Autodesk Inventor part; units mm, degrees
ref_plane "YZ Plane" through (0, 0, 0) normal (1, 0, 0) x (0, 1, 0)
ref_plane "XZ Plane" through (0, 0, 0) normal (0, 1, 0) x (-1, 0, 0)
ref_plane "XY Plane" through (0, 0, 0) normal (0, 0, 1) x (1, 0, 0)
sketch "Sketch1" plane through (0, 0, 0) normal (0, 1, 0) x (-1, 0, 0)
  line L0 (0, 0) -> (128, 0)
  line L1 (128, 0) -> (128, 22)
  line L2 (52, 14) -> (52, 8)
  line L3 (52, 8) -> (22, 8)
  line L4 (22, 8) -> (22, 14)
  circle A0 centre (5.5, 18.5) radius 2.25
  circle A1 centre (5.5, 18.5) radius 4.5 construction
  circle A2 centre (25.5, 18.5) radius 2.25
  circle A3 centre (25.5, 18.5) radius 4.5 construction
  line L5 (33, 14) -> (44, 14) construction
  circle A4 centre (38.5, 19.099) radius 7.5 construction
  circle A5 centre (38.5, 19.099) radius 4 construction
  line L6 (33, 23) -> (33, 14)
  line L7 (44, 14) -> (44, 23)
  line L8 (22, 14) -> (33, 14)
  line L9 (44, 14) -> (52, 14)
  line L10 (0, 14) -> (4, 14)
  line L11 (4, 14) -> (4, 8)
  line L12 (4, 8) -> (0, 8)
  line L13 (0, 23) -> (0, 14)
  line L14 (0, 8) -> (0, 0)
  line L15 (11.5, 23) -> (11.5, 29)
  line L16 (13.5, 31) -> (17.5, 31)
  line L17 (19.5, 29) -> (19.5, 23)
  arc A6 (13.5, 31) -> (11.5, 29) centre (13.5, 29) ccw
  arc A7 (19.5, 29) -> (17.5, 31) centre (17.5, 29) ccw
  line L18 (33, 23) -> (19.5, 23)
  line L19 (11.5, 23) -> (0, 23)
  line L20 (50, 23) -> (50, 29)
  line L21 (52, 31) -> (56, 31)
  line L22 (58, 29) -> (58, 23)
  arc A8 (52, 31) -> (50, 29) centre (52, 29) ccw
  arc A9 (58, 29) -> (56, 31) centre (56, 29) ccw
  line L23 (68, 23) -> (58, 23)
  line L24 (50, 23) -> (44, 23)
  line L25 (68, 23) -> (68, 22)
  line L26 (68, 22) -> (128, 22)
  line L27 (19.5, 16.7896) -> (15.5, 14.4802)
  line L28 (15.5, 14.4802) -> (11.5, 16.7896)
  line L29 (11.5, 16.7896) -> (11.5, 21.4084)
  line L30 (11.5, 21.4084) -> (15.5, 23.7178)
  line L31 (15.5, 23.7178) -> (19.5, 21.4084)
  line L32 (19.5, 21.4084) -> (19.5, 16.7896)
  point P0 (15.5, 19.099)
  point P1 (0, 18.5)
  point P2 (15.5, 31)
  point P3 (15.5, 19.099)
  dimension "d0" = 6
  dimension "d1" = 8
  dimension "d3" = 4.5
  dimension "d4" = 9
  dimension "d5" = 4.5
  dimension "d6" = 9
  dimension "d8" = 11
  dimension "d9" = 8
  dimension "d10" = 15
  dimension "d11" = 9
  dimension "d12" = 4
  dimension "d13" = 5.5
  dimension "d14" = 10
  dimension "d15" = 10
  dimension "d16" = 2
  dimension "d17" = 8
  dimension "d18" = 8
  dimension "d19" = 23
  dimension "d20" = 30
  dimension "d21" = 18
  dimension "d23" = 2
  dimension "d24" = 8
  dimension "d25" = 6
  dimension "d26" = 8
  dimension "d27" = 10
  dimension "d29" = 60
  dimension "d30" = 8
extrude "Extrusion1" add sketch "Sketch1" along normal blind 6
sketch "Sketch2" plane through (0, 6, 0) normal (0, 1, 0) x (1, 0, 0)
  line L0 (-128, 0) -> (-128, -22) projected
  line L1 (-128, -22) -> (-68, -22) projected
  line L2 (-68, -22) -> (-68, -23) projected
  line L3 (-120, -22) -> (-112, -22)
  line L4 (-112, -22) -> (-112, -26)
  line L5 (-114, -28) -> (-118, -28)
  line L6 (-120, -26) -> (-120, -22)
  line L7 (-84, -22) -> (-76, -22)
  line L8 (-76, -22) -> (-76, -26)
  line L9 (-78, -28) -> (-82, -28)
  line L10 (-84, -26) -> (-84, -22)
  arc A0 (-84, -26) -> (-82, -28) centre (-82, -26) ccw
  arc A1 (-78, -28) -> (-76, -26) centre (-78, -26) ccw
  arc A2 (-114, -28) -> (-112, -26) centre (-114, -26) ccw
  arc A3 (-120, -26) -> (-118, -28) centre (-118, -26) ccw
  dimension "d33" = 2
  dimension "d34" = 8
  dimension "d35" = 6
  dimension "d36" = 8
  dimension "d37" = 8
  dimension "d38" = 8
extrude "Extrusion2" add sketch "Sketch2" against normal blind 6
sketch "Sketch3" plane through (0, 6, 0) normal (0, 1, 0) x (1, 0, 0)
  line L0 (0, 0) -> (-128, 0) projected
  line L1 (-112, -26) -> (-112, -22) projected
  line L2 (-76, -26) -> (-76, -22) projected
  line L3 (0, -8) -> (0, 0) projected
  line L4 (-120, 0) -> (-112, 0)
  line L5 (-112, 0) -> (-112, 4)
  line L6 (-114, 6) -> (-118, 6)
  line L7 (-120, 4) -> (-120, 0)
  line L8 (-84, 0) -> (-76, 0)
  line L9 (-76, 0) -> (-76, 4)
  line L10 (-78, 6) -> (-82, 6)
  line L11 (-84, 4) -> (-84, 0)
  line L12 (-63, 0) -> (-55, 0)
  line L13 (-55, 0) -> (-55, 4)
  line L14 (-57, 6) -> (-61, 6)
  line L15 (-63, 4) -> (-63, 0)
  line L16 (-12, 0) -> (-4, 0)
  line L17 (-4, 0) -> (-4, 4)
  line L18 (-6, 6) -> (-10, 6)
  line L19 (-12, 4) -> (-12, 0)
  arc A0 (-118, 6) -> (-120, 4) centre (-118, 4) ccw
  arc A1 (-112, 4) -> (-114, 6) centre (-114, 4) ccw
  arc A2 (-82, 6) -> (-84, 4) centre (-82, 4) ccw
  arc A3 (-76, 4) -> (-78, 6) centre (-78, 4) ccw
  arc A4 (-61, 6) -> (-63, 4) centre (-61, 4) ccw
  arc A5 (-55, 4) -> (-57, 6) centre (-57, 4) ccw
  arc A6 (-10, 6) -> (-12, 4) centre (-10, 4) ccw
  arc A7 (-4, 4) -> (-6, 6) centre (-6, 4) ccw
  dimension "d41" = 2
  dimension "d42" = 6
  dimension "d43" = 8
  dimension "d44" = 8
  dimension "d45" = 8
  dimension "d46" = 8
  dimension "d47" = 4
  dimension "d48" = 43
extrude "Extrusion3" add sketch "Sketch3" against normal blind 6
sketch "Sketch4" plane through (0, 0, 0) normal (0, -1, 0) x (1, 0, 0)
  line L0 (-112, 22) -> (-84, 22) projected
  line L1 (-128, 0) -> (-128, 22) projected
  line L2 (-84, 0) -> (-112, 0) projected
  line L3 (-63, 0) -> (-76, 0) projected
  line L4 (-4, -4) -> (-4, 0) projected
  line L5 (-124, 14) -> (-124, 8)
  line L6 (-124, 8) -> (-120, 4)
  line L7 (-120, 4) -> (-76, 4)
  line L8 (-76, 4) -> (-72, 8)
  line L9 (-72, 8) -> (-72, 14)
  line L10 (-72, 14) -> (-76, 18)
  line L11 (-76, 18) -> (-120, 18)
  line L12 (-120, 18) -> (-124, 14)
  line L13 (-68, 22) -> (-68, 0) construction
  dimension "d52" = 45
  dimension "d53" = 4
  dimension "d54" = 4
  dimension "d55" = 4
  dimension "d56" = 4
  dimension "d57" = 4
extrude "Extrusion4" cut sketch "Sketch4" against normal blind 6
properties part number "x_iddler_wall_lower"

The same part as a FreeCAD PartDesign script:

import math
import FreeCAD as App
import Part
import Sketcher
from FreeCAD import Vector
Q = App.Units.Quantity

doc = App.newDocument("Part")
body = doc.addObject("PartDesign::Body", "Body")

# Sketch on XZ plane
sketch1 = doc.addObject("Sketcher::SketchObject", "Sketch")
body.addObject(sketch1)
sketch1.AttachmentSupport = (doc.XZ_Plane, [""])
sketch1.MapMode = "FlatFace"
sketch1.addGeometry([
    Part.LineSegment(Vector(0, 8, 0), Vector(0, 0, 0)),  # 0
    Part.LineSegment(Vector(0, 0, 0), Vector(-128, 0, 0)),  # 1
    Part.LineSegment(Vector(-128, 0, 0), Vector(-128, 22, 0)),  # 2
    Part.LineSegment(Vector(-128, 22, 0), Vector(-68, 22, 0)),  # 3
    Part.LineSegment(Vector(-68, 22, 0), Vector(-68, 23, 0)),  # 4
    Part.LineSegment(Vector(-68, 23, 0), Vector(-58, 23, 0)),  # 5
    Part.LineSegment(Vector(-58, 23, 0), Vector(-58, 29, 0)),  # 6
    Part.ArcOfCircle(Part.Circle(Vector(-56, 29, 0), Vector(0, 0, 1), 2), math.radians(90), math.radians(180)),  # 7
    Part.LineSegment(Vector(-56, 31, 0), Vector(-52, 31, 0)),  # 8
    Part.ArcOfCircle(Part.Circle(Vector(-52, 29, 0), Vector(0, 0, 1), 2), math.radians(0), math.radians(90)),  # 9
    Part.LineSegment(Vector(-50, 29, 0), Vector(-50, 23, 0)),  # 10
    Part.LineSegment(Vector(-50, 23, 0), Vector(-44, 23, 0)),  # 11
    Part.LineSegment(Vector(-44, 23, 0), Vector(-44, 14, 0)),  # 12
    Part.LineSegment(Vector(-44, 14, 0), Vector(-52, 14, 0)),  # 13
    Part.LineSegment(Vector(-52, 14, 0), Vector(-52, 8, 0)),  # 14
    Part.LineSegment(Vector(-52, 8, 0), Vector(-22, 8, 0)),  # 15
    Part.LineSegment(Vector(-22, 8, 0), Vector(-22, 14, 0)),  # 16
    Part.LineSegment(Vector(-22, 14, 0), Vector(-33, 14, 0)),  # 17
    Part.LineSegment(Vector(-33, 14, 0), Vector(-33, 23, 0)),  # 18
    Part.LineSegment(Vector(-33, 23, 0), Vector(-19.5, 23, 0)),  # 19
    Part.LineSegment(Vector(-19.5, 23, 0), Vector(-19.5, 29, 0)),  # 20
    Part.ArcOfCircle(Part.Circle(Vector(-17.5, 29, 0), Vector(0, 0, 1), 2), math.radians(90), math.radians(180)),  # 21
    Part.LineSegment(Vector(-17.5, 31, 0), Vector(-13.5, 31, 0)),  # 22
    Part.ArcOfCircle(Part.Circle(Vector(-13.5, 29, 0), Vector(0, 0, 1), 2), math.radians(0), math.radians(90)),  # 23
    Part.LineSegment(Vector(-11.5, 29, 0), Vector(-11.5, 23, 0)),  # 24
    Part.LineSegment(Vector(-11.5, 23, 0), Vector(0, 23, 0)),  # 25
    Part.LineSegment(Vector(0, 23, 0), Vector(0, 14, 0)),  # 26
    Part.LineSegment(Vector(0, 14, 0), Vector(-4, 14, 0)),  # 27
    Part.LineSegment(Vector(-4, 14, 0), Vector(-4, 8, 0)),  # 28
    Part.LineSegment(Vector(-4, 8, 0), Vector(0, 8, 0)),  # 29
    Part.Circle(Vector(-5.5, 18.5, 0), Vector(0, 0, 1), 2.2),  # 30
    Part.LineSegment(Vector(-19.5, 21.4, 0), Vector(-19.5, 16.8, 0)),  # 31
    Part.LineSegment(Vector(-19.5, 16.8, 0), Vector(-15.5, 14.5, 0)),  # 32
    Part.LineSegment(Vector(-15.5, 14.5, 0), Vector(-11.5, 16.8, 0)),  # 33
    Part.LineSegment(Vector(-11.5, 16.8, 0), Vector(-11.5, 21.4, 0)),  # 34
    Part.LineSegment(Vector(-11.5, 21.4, 0), Vector(-15.5, 23.7, 0)),  # 35
    Part.LineSegment(Vector(-15.5, 23.7, 0), Vector(-19.5, 21.4, 0)),  # 36
    Part.Circle(Vector(-25.5, 18.5, 0), Vector(0, 0, 1), 2.2),  # 37
], False)
sketch1.addConstraint([
    Sketcher.Constraint("Coincident", 0, 2, 1, 1),
    Sketcher.Constraint("Coincident", 1, 2, 2, 1),
    Sketcher.Constraint("Coincident", 2, 2, 3, 1),
    Sketcher.Constraint("Coincident", 3, 2, 4, 1),
    Sketcher.Constraint("Coincident", 4, 2, 5, 1),
    Sketcher.Constraint("Coincident", 5, 2, 6, 1),
    Sketcher.Constraint("Tangent", 6, 2, 7, 2),
    Sketcher.Constraint("Tangent", 7, 1, 8, 1),
    Sketcher.Constraint("Tangent", 8, 2, 9, 2),
    Sketcher.Constraint("Tangent", 9, 1, 10, 1),
    Sketcher.Constraint("Coincident", 10, 2, 11, 1),
    Sketcher.Constraint("Coincident", 11, 2, 12, 1),
    Sketcher.Constraint("Coincident", 12, 2, 13, 1),
    Sketcher.Constraint("Coincident", 13, 2, 14, 1),
    Sketcher.Constraint("Coincident", 14, 2, 15, 1),
    Sketcher.Constraint("Coincident", 15, 2, 16, 1),
    Sketcher.Constraint("Coincident", 16, 2, 17, 1),
    Sketcher.Constraint("Coincident", 17, 2, 18, 1),
    Sketcher.Constraint("Coincident", 18, 2, 19, 1),
    Sketcher.Constraint("Coincident", 19, 2, 20, 1),
    Sketcher.Constraint("Tangent", 20, 2, 21, 2),
    Sketcher.Constraint("Tangent", 21, 1, 22, 1),
    Sketcher.Constraint("Tangent", 22, 2, 23, 2),
    Sketcher.Constraint("Tangent", 23, 1, 24, 1),
    Sketcher.Constraint("Coincident", 24, 2, 25, 1),
    Sketcher.Constraint("Coincident", 25, 2, 26, 1),
    Sketcher.Constraint("Coincident", 26, 2, 27, 1),
    Sketcher.Constraint("Coincident", 27, 2, 28, 1),
    Sketcher.Constraint("Coincident", 28, 2, 29, 1),
    Sketcher.Constraint("Coincident", 29, 2, 0, 1),
    Sketcher.Constraint("Coincident", 31, 2, 32, 1),
    Sketcher.Constraint("Coincident", 32, 2, 33, 1),
    Sketcher.Constraint("Coincident", 33, 2, 34, 1),
    Sketcher.Constraint("Coincident", 34, 2, 35, 1),
    Sketcher.Constraint("Coincident", 35, 2, 36, 1),
    Sketcher.Constraint("Coincident", 36, 2, 31, 1),
    Sketcher.Constraint("Vertical", 0),
    Sketcher.Constraint("Horizontal", 1),
    Sketcher.Constraint("Vertical", 2),
    Sketcher.Constraint("Horizontal", 3),
    Sketcher.Constraint("Vertical", 4),
    Sketcher.Constraint("Horizontal", 5),
    Sketcher.Constraint("Vertical", 6),
    Sketcher.Constraint("Horizontal", 8),
    Sketcher.Constraint("Vertical", 10),
    Sketcher.Constraint("Horizontal", 11),
    Sketcher.Constraint("Vertical", 12),
    Sketcher.Constraint("Horizontal", 13),
    Sketcher.Constraint("Vertical", 14),
    Sketcher.Constraint("Horizontal", 15),
    Sketcher.Constraint("Vertical", 16),
    Sketcher.Constraint("Horizontal", 17),
    Sketcher.Constraint("Vertical", 18),
    Sketcher.Constraint("Horizontal", 19),
    Sketcher.Constraint("Vertical", 20),
    Sketcher.Constraint("Horizontal", 22),
    Sketcher.Constraint("Vertical", 24),
    Sketcher.Constraint("Horizontal", 25),
    Sketcher.Constraint("Vertical", 26),
    Sketcher.Constraint("Horizontal", 27),
    Sketcher.Constraint("Vertical", 28),
    Sketcher.Constraint("Horizontal", 29),
    Sketcher.Constraint("Vertical", 31),
    Sketcher.Constraint("Vertical", 34),
    Sketcher.Constraint("Coincident", 0, 2, -1, 1),
    Sketcher.Constraint("Equal", 7, 9),
    Sketcher.Constraint("Equal", 9, 21),
    Sketcher.Constraint("Equal", 21, 23),
    Sketcher.Constraint("Equal", 30, 37),
    Sketcher.Constraint("PointOnObject", 25, 2, -2),
    Sketcher.Constraint("Parallel", 32, 35),
    Sketcher.Constraint("Parallel", 33, 36),
    Sketcher.Constraint("Horizontal", 9, 3, 21, 3),
    Sketcher.Constraint("Horizontal", 30, 3, 37, 3),
    Sketcher.Constraint("Horizontal", 5, 2, 10, 2),
    Sketcher.Constraint("Horizontal", 13, 2, 16, 2),
    Sketcher.Constraint("Horizontal", 11, 2, 18, 2),
    Sketcher.Constraint("Horizontal", 19, 2, 24, 2),
    Sketcher.Constraint("Horizontal", 17, 2, 26, 2),
    Sketcher.Constraint("Horizontal", 15, 2, 28, 2),
    Sketcher.Constraint("Horizontal", 31, 2, 33, 2),
    Sketcher.Constraint("Horizontal", 34, 2, 36, 2),
    Sketcher.Constraint("Vertical", 8, 2, 13, 2),
    Sketcher.Constraint("Vertical", 20, 2, 31, 2),
    Sketcher.Constraint("Vertical", 24, 2, 33, 2),
    Sketcher.Constraint("Vertical", 32, 2, 35, 2),
    Sketcher.Constraint("Equal", 8, 22),
    Sketcher.Constraint("Equal", 22, 27),
    Sketcher.Constraint("Equal", 13, 0),
    Sketcher.Constraint("Equal", 11, 6),
    Sketcher.Constraint("Equal", 10, 14),
    Sketcher.Constraint("Radius", 7, Q("2 mm")),
    Sketcher.Constraint("Diameter", 30, Q("4.5 mm")),
    Sketcher.Constraint("DistanceX", 3, 1, 3, 2, Q("60 mm")),
    Sketcher.Constraint("DistanceX", 5, 1, 5, 2, Q("10 mm")),
    Sketcher.Constraint("DistanceX", 8, 1, 8, 2, Q("4 mm")),
    Sketcher.Constraint("DistanceX", 11, 1, 11, 2, Q("6 mm")),
    Sketcher.Constraint("DistanceX", 15, 1, 15, 2, Q("30 mm")),
    Sketcher.Constraint("DistanceX", 17, 2, 17, 1, Q("11 mm")),
    Sketcher.Constraint("DistanceY", 12, 2, 12, 1, Q("9 mm")),
    Sketcher.Constraint("Angle", 32, Q("-30 deg")),
    Sketcher.Constraint("DistanceX", 23, 3, 30, 3, Q("8 mm")),
    Sketcher.Constraint("DistanceX", 37, 3, 21, 3, Q("8 mm")),
    Sketcher.Constraint("DistanceX", 30, 3, -1, 1, Q("5.5 mm")),
    Sketcher.Constraint("DistanceY", 37, 3, 4, 2, Q("4.5 mm")),
    Sketcher.Constraint("DistanceX", 15, 2, 21, 3, Q("4.5 mm")),
    Sketcher.Constraint("DistanceY", 2, 1, 2, 2, Q("22 mm")),
    Sketcher.Constraint("DistanceY", 31, 2, 31, 1, Q("4.6188 mm")),
    Sketcher.Constraint("DistanceY", -1, 1, 31, 2, Q("16.7896 mm")),
])
pad1 = doc.addObject("PartDesign::Pad", "Pad")
body.addObject(pad1)
pad1.Profile = sketch1
pad1.Length = 6
pad1.Reversed = True

# Sketch on XZ plane
sketch2 = doc.addObject("Sketcher::SketchObject", "Sketch001")
body.addObject(sketch2)
sketch2.AttachmentSupport = (doc.XZ_Plane, [""])
sketch2.MapMode = "FlatFace"
sketch2.AttachmentOffset = App.Placement(Vector(0, 0, -6), App.Rotation())
sketch2.addGeometry([
    Part.LineSegment(Vector(-76, 22, 0), Vector(-84, 22, 0)),  # 0
    Part.LineSegment(Vector(-84, 22, 0), Vector(-84, 26, 0)),  # 1
    Part.ArcOfCircle(Part.Circle(Vector(-82, 26, 0), Vector(0, 0, 1), 2), math.radians(90), math.radians(180)),  # 2
    Part.LineSegment(Vector(-82, 28, 0), Vector(-78, 28, 0)),  # 3
    Part.ArcOfCircle(Part.Circle(Vector(-78, 26, 0), Vector(0, 0, 1), 2), math.radians(0), math.radians(90)),  # 4
    Part.LineSegment(Vector(-76, 26, 0), Vector(-76, 22, 0)),  # 5
    Part.LineSegment(Vector(-112, 22, 0), Vector(-120, 22, 0)),  # 6
    Part.LineSegment(Vector(-120, 22, 0), Vector(-120, 26, 0)),  # 7
    Part.ArcOfCircle(Part.Circle(Vector(-118, 26, 0), Vector(0, 0, 1), 2), math.radians(90), math.radians(180)),  # 8
    Part.LineSegment(Vector(-118, 28, 0), Vector(-114, 28, 0)),  # 9
    Part.ArcOfCircle(Part.Circle(Vector(-114, 26, 0), Vector(0, 0, 1), 2), math.radians(0), math.radians(90)),  # 10
    Part.LineSegment(Vector(-112, 26, 0), Vector(-112, 22, 0)),  # 11
], False)
sketch2.addConstraint([
    Sketcher.Constraint("Coincident", 0, 2, 1, 1),
    Sketcher.Constraint("Tangent", 1, 2, 2, 2),
    Sketcher.Constraint("Tangent", 2, 1, 3, 1),
    Sketcher.Constraint("Tangent", 3, 2, 4, 2),
    Sketcher.Constraint("Tangent", 4, 1, 5, 1),
    Sketcher.Constraint("Coincident", 5, 2, 0, 1),
    Sketcher.Constraint("Coincident", 6, 2, 7, 1),
    Sketcher.Constraint("Tangent", 7, 2, 8, 2),
    Sketcher.Constraint("Tangent", 8, 1, 9, 1),
    Sketcher.Constraint("Tangent", 9, 2, 10, 2),
    Sketcher.Constraint("Tangent", 10, 1, 11, 1),
    Sketcher.Constraint("Coincident", 11, 2, 6, 1),
    Sketcher.Constraint("Horizontal", 0),
    Sketcher.Constraint("Vertical", 1),
    Sketcher.Constraint("Horizontal", 3),
    Sketcher.Constraint("Vertical", 5),
    Sketcher.Constraint("Horizontal", 6),
    Sketcher.Constraint("Vertical", 7),
    Sketcher.Constraint("Horizontal", 9),
    Sketcher.Constraint("Vertical", 11),
    Sketcher.Constraint("Equal", 2, 4),
    Sketcher.Constraint("Equal", 4, 8),
    Sketcher.Constraint("Equal", 8, 10),
    Sketcher.Constraint("Horizontal", 4, 3, 8, 3),
    Sketcher.Constraint("Horizontal", 5, 2, 6, 2),
    Sketcher.Constraint("Equal", 0, 6),
    Sketcher.Constraint("Equal", 9, 1),
    Sketcher.Constraint("Radius", 2, Q("2 mm")),
    Sketcher.Constraint("DistanceX", 0, 2, 0, 1, Q("8 mm")),
    Sketcher.Constraint("DistanceX", 2, 3, -1, 1, Q("82 mm")),
    Sketcher.Constraint("DistanceY", -1, 1, 2, 3, Q("26 mm")),
    Sketcher.Constraint("DistanceX", 8, 3, -1, 1, Q("118 mm")),
])
pad2 = doc.addObject("PartDesign::Pad", "Pad001")
body.addObject(pad2)
pad2.Profile = sketch2
pad2.Length = 6

# Sketch on XZ plane
sketch3 = doc.addObject("Sketcher::SketchObject", "Sketch002")
body.addObject(sketch3)
sketch3.AttachmentSupport = (doc.XZ_Plane, [""])
sketch3.MapMode = "FlatFace"
sketch3.AttachmentOffset = App.Placement(Vector(0, 0, -6), App.Rotation())
sketch3.addGeometry([
    Part.LineSegment(Vector(-120, 0, 0), Vector(-112, 0, 0)),  # 0
    Part.LineSegment(Vector(-112, 0, 0), Vector(-112, -4, 0)),  # 1
    Part.ArcOfCircle(Part.Circle(Vector(-114, -4, 0), Vector(0, 0, 1), 2), math.radians(-90), math.radians(0)),  # 2
    Part.LineSegment(Vector(-114, -6, 0), Vector(-118, -6, 0)),  # 3
    Part.ArcOfCircle(Part.Circle(Vector(-118, -4, 0), Vector(0, 0, 1), 2), math.radians(180), math.radians(270)),  # 4
    Part.LineSegment(Vector(-120, -4, 0), Vector(-120, 0, 0)),  # 5
    Part.LineSegment(Vector(-84, 0, 0), Vector(-76, 0, 0)),  # 6
    Part.LineSegment(Vector(-76, 0, 0), Vector(-76, -4, 0)),  # 7
    Part.ArcOfCircle(Part.Circle(Vector(-78, -4, 0), Vector(0, 0, 1), 2), math.radians(-90), math.radians(0)),  # 8
    Part.LineSegment(Vector(-78, -6, 0), Vector(-82, -6, 0)),  # 9
    Part.ArcOfCircle(Part.Circle(Vector(-82, -4, 0), Vector(0, 0, 1), 2), math.radians(180), math.radians(270)),  # 10
    Part.LineSegment(Vector(-84, -4, 0), Vector(-84, 0, 0)),  # 11
    Part.LineSegment(Vector(-63, 0, 0), Vector(-55, 0, 0)),  # 12
    Part.LineSegment(Vector(-55, 0, 0), Vector(-55, -4, 0)),  # 13
    Part.ArcOfCircle(Part.Circle(Vector(-57, -4, 0), Vector(0, 0, 1), 2), math.radians(-90), math.radians(0)),  # 14
    Part.LineSegment(Vector(-57, -6, 0), Vector(-61, -6, 0)),  # 15
    Part.ArcOfCircle(Part.Circle(Vector(-61, -4, 0), Vector(0, 0, 1), 2), math.radians(180), math.radians(270)),  # 16
    Part.LineSegment(Vector(-63, -4, 0), Vector(-63, 0, 0)),  # 17
    Part.LineSegment(Vector(-12, 0, 0), Vector(-4, 0, 0)),  # 18
    Part.LineSegment(Vector(-4, 0, 0), Vector(-4, -4, 0)),  # 19
    Part.ArcOfCircle(Part.Circle(Vector(-6, -4, 0), Vector(0, 0, 1), 2), math.radians(-90), math.radians(0)),  # 20
    Part.LineSegment(Vector(-6, -6, 0), Vector(-10, -6, 0)),  # 21
    Part.ArcOfCircle(Part.Circle(Vector(-10, -4, 0), Vector(0, 0, 1), 2), math.radians(180), math.radians(270)),  # 22
    Part.LineSegment(Vector(-12, -4, 0), Vector(-12, 0, 0)),  # 23
], False)
sketch3.addConstraint([
    Sketcher.Constraint("Coincident", 0, 2, 1, 1),
    Sketcher.Constraint("Tangent", 1, 2, 2, 2),
    Sketcher.Constraint("Tangent", 2, 1, 3, 1),
    Sketcher.Constraint("Tangent", 3, 2, 4, 2),
    Sketcher.Constraint("Tangent", 4, 1, 5, 1),
    Sketcher.Constraint("Coincident", 5, 2, 0, 1),
    Sketcher.Constraint("Coincident", 6, 2, 7, 1),
    Sketcher.Constraint("Tangent", 7, 2, 8, 2),
    Sketcher.Constraint("Tangent", 8, 1, 9, 1),
    Sketcher.Constraint("Tangent", 9, 2, 10, 2),
    Sketcher.Constraint("Tangent", 10, 1, 11, 1),
    Sketcher.Constraint("Coincident", 11, 2, 6, 1),
    Sketcher.Constraint("Coincident", 12, 2, 13, 1),
    Sketcher.Constraint("Tangent", 13, 2, 14, 2),
    Sketcher.Constraint("Tangent", 14, 1, 15, 1),
    Sketcher.Constraint("Tangent", 15, 2, 16, 2),
    Sketcher.Constraint("Tangent", 16, 1, 17, 1),
    Sketcher.Constraint("Coincident", 17, 2, 12, 1),
    Sketcher.Constraint("Coincident", 18, 2, 19, 1),
    Sketcher.Constraint("Tangent", 19, 2, 20, 2),
    Sketcher.Constraint("Tangent", 20, 1, 21, 1),
    Sketcher.Constraint("Tangent", 21, 2, 22, 2),
    Sketcher.Constraint("Tangent", 22, 1, 23, 1),
    Sketcher.Constraint("Coincident", 23, 2, 18, 1),
    Sketcher.Constraint("Horizontal", 0),
    Sketcher.Constraint("Vertical", 1),
    Sketcher.Constraint("Horizontal", 3),
    Sketcher.Constraint("Vertical", 5),
    Sketcher.Constraint("Horizontal", 6),
    Sketcher.Constraint("Vertical", 7),
    Sketcher.Constraint("Horizontal", 9),
    Sketcher.Constraint("Vertical", 11),
    Sketcher.Constraint("Horizontal", 12),
    Sketcher.Constraint("Vertical", 13),
    Sketcher.Constraint("Horizontal", 15),
    Sketcher.Constraint("Vertical", 17),
    Sketcher.Constraint("Horizontal", 18),
    Sketcher.Constraint("Vertical", 19),
    Sketcher.Constraint("Horizontal", 21),
    Sketcher.Constraint("Vertical", 23),
    Sketcher.Constraint("Equal", 2, 4),
    Sketcher.Constraint("Equal", 4, 8),
    Sketcher.Constraint("Equal", 8, 10),
    Sketcher.Constraint("Equal", 10, 14),
    Sketcher.Constraint("Equal", 14, 16),
    Sketcher.Constraint("Equal", 16, 20),
    Sketcher.Constraint("Equal", 20, 22),
    Sketcher.Constraint("PointOnObject", 0, 2, -1),
    Sketcher.Constraint("PointOnObject", 6, 2, -1),
    Sketcher.Constraint("PointOnObject", 12, 2, -1),
    Sketcher.Constraint("PointOnObject", 18, 2, -1),
    Sketcher.Constraint("Horizontal", 4, 3, 8, 3),
    Sketcher.Constraint("Horizontal", 10, 3, 14, 3),
    Sketcher.Constraint("Horizontal", 16, 3, 20, 3),
    Sketcher.Constraint("Equal", 0, 6),
    Sketcher.Constraint("Equal", 6, 12),
    Sketcher.Constraint("Equal", 12, 18),
    Sketcher.Constraint("Equal", 21, 1),
    Sketcher.Constraint("Radius", 2, Q("2 mm")),
    Sketcher.Constraint("DistanceX", 0, 1, 0, 2, Q("8 mm")),
    Sketcher.Constraint("DistanceX", 20, 3, -1, 1, Q("6 mm")),
    Sketcher.Constraint("DistanceX", 2, 3, -1, 1, Q("114 mm")),
    Sketcher.Constraint("DistanceX", 8, 3, -1, 1, Q("78 mm")),
    Sketcher.Constraint("DistanceX", 14, 3, -1, 1, Q("57 mm")),
])
pad3 = doc.addObject("PartDesign::Pad", "Pad002")
body.addObject(pad3)
pad3.Profile = sketch3
pad3.Length = 6

# Sketch on XZ plane
sketch4 = doc.addObject("Sketcher::SketchObject", "Sketch003")
body.addObject(sketch4)
sketch4.AttachmentSupport = (doc.XZ_Plane, [""])
sketch4.MapMode = "FlatFace"
sketch4.addGeometry([
    Part.LineSegment(Vector(-120, 18, 0), Vector(-124, 14, 0)),  # 0
    Part.LineSegment(Vector(-124, 14, 0), Vector(-124, 8, 0)),  # 1
    Part.LineSegment(Vector(-124, 8, 0), Vector(-120, 4, 0)),  # 2
    Part.LineSegment(Vector(-120, 4, 0), Vector(-76, 4, 0)),  # 3
    Part.LineSegment(Vector(-76, 4, 0), Vector(-72, 8, 0)),  # 4
    Part.LineSegment(Vector(-72, 8, 0), Vector(-72, 14, 0)),  # 5
    Part.LineSegment(Vector(-72, 14, 0), Vector(-76, 18, 0)),  # 6
    Part.LineSegment(Vector(-76, 18, 0), Vector(-120, 18, 0)),  # 7
], False)
sketch4.addConstraint([
    Sketcher.Constraint("Coincident", 0, 2, 1, 1),
    Sketcher.Constraint("Coincident", 1, 2, 2, 1),
    Sketcher.Constraint("Coincident", 2, 2, 3, 1),
    Sketcher.Constraint("Coincident", 3, 2, 4, 1),
    Sketcher.Constraint("Coincident", 4, 2, 5, 1),
    Sketcher.Constraint("Coincident", 5, 2, 6, 1),
    Sketcher.Constraint("Coincident", 6, 2, 7, 1),
    Sketcher.Constraint("Coincident", 7, 2, 0, 1),
    Sketcher.Constraint("Vertical", 1),
    Sketcher.Constraint("Horizontal", 3),
    Sketcher.Constraint("Vertical", 5),
    Sketcher.Constraint("Horizontal", 7),
    Sketcher.Constraint("Perpendicular", 0, 2),
    Sketcher.Constraint("Perpendicular", 2, 4),
    Sketcher.Constraint("Perpendicular", 4, 6),
    Sketcher.Constraint("Horizontal", 1, 2, 4, 2),
    Sketcher.Constraint("Horizontal", 0, 2, 5, 2),
    Sketcher.Constraint("Vertical", 3, 2, 6, 2),
    Sketcher.Constraint("Vertical", 2, 2, 7, 2),
    Sketcher.Constraint("DistanceY", -1, 1, 2, 2, Q("4 mm")),
    Sketcher.Constraint("DistanceX", 1, 2, 2, 2, Q("4 mm")),
    Sketcher.Constraint("DistanceX", 3, 1, 3, 2, Q("44 mm")),
    Sketcher.Constraint("DistanceY", 1, 2, 1, 1, Q("6 mm")),
    Sketcher.Constraint("DistanceX", 0, 2, -1, 1, Q("124 mm")),
])
pocket1 = doc.addObject("PartDesign::Pocket", "Pocket")
body.addObject(pocket1)
pocket1.Profile = sketch4
pocket1.Length = 6

doc.recompute()
